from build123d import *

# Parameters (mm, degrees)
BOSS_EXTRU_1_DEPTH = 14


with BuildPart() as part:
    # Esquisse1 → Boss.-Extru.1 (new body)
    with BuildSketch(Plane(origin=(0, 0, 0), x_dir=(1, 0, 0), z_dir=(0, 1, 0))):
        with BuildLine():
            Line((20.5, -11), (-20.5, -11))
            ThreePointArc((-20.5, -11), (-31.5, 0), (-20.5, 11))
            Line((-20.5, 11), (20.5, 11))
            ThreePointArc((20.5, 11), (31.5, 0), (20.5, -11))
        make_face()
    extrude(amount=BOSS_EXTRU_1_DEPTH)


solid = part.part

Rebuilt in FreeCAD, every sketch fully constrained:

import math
import FreeCAD as App
import Part
import Sketcher

V = App.Vector

doc = App.newDocument("Part")
body = doc.addObject("PartDesign::Body", "Body")

sketch1 = doc.addObject("Sketcher::SketchObject", "Sketch")
body.addObject(sketch1)
sketch1.AttachmentSupport = (doc.XZ_Plane, [""])
sketch1.MapMode = "FlatFace"
sketch1.addGeometry(Part.LineSegment(V(-20, 11, 0), V(20, 11, 0)), False)
sketch1.addGeometry(Part.ArcOfCircle(Part.Circle(V(20, 0, 0), V(0, 0, 1), 11), math.radians(-90), math.radians(90)), False)
sketch1.addGeometry(Part.LineSegment(V(20, -11, 0), V(-20, -11, 0)), False)
sketch1.addGeometry(Part.ArcOfCircle(Part.Circle(V(-20, 0, 0), V(0, 0, 1), 11), math.radians(90), math.radians(270)), False)
sketch1.addConstraint(Sketcher.Constraint("Tangent", 0, 2, 1, 2))
sketch1.addConstraint(Sketcher.Constraint("Tangent", 1, 1, 2, 1))
sketch1.addConstraint(Sketcher.Constraint("Tangent", 2, 2, 3, 2))
sketch1.addConstraint(Sketcher.Constraint("Tangent", 3, 1, 0, 1))
sketch1.addConstraint(Sketcher.Constraint("Horizontal", 0))
sketch1.addConstraint(Sketcher.Constraint("Horizontal", 2))
sketch1.addConstraint(Sketcher.Constraint("Symmetric", 1, 3, 3, 3, -1, 1))
sketch1.addConstraint(Sketcher.Constraint("Radius", 1, 11.0))
sketch1.addConstraint(Sketcher.Constraint("DistanceX", 0, 1, 0, 2, 41.0))
pad1 = doc.addObject("PartDesign::Pad", "Pad")
body.addObject(pad1)
pad1.Profile = sketch1
pad1.Length = 14
pad1.Reversed = True

doc.recompute()
